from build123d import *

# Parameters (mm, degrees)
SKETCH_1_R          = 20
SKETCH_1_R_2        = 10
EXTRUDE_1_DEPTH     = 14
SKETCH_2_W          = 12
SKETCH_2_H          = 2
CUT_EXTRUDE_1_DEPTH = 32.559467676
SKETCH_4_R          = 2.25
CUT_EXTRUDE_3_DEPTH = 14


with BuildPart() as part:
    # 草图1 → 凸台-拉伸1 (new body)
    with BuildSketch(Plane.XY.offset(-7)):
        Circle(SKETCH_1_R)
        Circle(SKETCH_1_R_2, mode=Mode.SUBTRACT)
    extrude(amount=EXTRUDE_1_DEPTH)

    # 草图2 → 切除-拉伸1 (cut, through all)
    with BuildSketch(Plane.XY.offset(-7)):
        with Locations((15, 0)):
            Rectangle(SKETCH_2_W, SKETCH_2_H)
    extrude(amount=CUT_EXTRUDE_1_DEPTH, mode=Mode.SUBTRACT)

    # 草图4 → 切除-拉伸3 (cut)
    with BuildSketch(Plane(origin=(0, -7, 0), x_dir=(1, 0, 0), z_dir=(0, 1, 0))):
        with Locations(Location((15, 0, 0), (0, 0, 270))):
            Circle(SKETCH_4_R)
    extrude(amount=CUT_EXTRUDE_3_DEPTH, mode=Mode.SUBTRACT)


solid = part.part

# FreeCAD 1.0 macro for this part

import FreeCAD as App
import Part
import Sketcher

V = App.Vector


def add_polygon(sketch, points):
    """Adds a closed chain of lines whose ends are joined by coincident constraints."""
    first, n = sketch.GeometryCount, len(points)
    for a, b in zip(points, points[1:] + points[:1]):
        sketch.addGeometry(Part.LineSegment(App.Vector(*a, 0), App.Vector(*b, 0)), False)
    for i in range(n):
        sketch.addConstraint(Sketcher.Constraint("Coincident", first + i, 2, first + (i + 1) % n, 1))

doc = App.newDocument("Part")
body = doc.addObject("PartDesign::Body", "Body")

# Sketch on XY plane
sketch1 = body.newObject("Sketcher::SketchObject", "Sketch")
sketch1.AttachmentSupport = (doc.getObject("XY_Plane"), [""])
sketch1.MapMode = "FlatFace"
sketch1.AttachmentOffset = App.Placement(V(0, 0, -7), App.Rotation())
sketch1.addGeometry([
    Part.Circle(V(0, 0, 0), V(0, 0, 1), 20),
    Part.Circle(V(0, 0, 0), V(0, 0, 1), 10),
], False)
sketch1.addConstraint([
    Sketcher.Constraint("Coincident", 0, 3, -1, 1),
    Sketcher.Constraint("Coincident", 1, 3, -1, 1),
    Sketcher.Constraint("Diameter", 0, 40.0),
    Sketcher.Constraint("Diameter", 1, 20.0),
])
pad1 = body.newObject("PartDesign::Pad", "Pad")
pad1.Profile = sketch1
pad1.Length = 14

# Sketch on XY plane
sketch2 = body.newObject("Sketcher::SketchObject", "Sketch001")
sketch2.AttachmentSupport = (doc.getObject("XY_Plane"), [""])
sketch2.MapMode = "FlatFace"
sketch2.AttachmentOffset = App.Placement(V(0, 0, -7), App.Rotation())
add_polygon(sketch2, [(9, 1), (9, -1), (21, -1), (21, 1)])  # lines 0-3
sketch2.addConstraint([
    Sketcher.Constraint("Vertical", 0),
    Sketcher.Constraint("Horizontal", 1),
    Sketcher.Constraint("Vertical", 2),
    Sketcher.Constraint("Horizontal", 3),
    Sketcher.Constraint("DistanceX", 1, 1, 1, 2, 12.0),
    Sketcher.Constraint("DistanceY", 0, 2, 0, 1, 2.0),
    Sketcher.Constraint("DistanceX", -1, 1, 0, 2, 9.0),
    Sketcher.Constraint("DistanceY", 0, 2, -1, 1, 1.0),
])
pocket1 = body.newObject("PartDesign::Pocket", "Pocket")
pocket1.Profile = sketch2
pocket1.Type = "ThroughAll"
pocket1.Reversed = True

# Sketch on XZ plane
sketch3 = body.newObject("Sketcher::SketchObject", "Sketch002")
sketch3.AttachmentSupport = (doc.getObject("XZ_Plane"), [""])
sketch3.MapMode = "FlatFace"
sketch3.AttachmentOffset = App.Placement(V(0, 0, 7), App.Rotation())
sketch3.addGeometry(Part.Circle(V(15, 0, 0), V(0, 0, 1), 2.25), False)
sketch3.addConstraint([
    Sketcher.Constraint("PointOnObject", 0, 3, -1),
    Sketcher.Constraint("Diameter", 0, 4.5),
    Sketcher.Constraint("DistanceX", -1, 1, 0, 3, 15.0),
])
pocket2 = body.newObject("PartDesign::Pocket", "Pocket001")
pocket2.Profile = sketch3
pocket2.Length = 14

doc.recompute()
